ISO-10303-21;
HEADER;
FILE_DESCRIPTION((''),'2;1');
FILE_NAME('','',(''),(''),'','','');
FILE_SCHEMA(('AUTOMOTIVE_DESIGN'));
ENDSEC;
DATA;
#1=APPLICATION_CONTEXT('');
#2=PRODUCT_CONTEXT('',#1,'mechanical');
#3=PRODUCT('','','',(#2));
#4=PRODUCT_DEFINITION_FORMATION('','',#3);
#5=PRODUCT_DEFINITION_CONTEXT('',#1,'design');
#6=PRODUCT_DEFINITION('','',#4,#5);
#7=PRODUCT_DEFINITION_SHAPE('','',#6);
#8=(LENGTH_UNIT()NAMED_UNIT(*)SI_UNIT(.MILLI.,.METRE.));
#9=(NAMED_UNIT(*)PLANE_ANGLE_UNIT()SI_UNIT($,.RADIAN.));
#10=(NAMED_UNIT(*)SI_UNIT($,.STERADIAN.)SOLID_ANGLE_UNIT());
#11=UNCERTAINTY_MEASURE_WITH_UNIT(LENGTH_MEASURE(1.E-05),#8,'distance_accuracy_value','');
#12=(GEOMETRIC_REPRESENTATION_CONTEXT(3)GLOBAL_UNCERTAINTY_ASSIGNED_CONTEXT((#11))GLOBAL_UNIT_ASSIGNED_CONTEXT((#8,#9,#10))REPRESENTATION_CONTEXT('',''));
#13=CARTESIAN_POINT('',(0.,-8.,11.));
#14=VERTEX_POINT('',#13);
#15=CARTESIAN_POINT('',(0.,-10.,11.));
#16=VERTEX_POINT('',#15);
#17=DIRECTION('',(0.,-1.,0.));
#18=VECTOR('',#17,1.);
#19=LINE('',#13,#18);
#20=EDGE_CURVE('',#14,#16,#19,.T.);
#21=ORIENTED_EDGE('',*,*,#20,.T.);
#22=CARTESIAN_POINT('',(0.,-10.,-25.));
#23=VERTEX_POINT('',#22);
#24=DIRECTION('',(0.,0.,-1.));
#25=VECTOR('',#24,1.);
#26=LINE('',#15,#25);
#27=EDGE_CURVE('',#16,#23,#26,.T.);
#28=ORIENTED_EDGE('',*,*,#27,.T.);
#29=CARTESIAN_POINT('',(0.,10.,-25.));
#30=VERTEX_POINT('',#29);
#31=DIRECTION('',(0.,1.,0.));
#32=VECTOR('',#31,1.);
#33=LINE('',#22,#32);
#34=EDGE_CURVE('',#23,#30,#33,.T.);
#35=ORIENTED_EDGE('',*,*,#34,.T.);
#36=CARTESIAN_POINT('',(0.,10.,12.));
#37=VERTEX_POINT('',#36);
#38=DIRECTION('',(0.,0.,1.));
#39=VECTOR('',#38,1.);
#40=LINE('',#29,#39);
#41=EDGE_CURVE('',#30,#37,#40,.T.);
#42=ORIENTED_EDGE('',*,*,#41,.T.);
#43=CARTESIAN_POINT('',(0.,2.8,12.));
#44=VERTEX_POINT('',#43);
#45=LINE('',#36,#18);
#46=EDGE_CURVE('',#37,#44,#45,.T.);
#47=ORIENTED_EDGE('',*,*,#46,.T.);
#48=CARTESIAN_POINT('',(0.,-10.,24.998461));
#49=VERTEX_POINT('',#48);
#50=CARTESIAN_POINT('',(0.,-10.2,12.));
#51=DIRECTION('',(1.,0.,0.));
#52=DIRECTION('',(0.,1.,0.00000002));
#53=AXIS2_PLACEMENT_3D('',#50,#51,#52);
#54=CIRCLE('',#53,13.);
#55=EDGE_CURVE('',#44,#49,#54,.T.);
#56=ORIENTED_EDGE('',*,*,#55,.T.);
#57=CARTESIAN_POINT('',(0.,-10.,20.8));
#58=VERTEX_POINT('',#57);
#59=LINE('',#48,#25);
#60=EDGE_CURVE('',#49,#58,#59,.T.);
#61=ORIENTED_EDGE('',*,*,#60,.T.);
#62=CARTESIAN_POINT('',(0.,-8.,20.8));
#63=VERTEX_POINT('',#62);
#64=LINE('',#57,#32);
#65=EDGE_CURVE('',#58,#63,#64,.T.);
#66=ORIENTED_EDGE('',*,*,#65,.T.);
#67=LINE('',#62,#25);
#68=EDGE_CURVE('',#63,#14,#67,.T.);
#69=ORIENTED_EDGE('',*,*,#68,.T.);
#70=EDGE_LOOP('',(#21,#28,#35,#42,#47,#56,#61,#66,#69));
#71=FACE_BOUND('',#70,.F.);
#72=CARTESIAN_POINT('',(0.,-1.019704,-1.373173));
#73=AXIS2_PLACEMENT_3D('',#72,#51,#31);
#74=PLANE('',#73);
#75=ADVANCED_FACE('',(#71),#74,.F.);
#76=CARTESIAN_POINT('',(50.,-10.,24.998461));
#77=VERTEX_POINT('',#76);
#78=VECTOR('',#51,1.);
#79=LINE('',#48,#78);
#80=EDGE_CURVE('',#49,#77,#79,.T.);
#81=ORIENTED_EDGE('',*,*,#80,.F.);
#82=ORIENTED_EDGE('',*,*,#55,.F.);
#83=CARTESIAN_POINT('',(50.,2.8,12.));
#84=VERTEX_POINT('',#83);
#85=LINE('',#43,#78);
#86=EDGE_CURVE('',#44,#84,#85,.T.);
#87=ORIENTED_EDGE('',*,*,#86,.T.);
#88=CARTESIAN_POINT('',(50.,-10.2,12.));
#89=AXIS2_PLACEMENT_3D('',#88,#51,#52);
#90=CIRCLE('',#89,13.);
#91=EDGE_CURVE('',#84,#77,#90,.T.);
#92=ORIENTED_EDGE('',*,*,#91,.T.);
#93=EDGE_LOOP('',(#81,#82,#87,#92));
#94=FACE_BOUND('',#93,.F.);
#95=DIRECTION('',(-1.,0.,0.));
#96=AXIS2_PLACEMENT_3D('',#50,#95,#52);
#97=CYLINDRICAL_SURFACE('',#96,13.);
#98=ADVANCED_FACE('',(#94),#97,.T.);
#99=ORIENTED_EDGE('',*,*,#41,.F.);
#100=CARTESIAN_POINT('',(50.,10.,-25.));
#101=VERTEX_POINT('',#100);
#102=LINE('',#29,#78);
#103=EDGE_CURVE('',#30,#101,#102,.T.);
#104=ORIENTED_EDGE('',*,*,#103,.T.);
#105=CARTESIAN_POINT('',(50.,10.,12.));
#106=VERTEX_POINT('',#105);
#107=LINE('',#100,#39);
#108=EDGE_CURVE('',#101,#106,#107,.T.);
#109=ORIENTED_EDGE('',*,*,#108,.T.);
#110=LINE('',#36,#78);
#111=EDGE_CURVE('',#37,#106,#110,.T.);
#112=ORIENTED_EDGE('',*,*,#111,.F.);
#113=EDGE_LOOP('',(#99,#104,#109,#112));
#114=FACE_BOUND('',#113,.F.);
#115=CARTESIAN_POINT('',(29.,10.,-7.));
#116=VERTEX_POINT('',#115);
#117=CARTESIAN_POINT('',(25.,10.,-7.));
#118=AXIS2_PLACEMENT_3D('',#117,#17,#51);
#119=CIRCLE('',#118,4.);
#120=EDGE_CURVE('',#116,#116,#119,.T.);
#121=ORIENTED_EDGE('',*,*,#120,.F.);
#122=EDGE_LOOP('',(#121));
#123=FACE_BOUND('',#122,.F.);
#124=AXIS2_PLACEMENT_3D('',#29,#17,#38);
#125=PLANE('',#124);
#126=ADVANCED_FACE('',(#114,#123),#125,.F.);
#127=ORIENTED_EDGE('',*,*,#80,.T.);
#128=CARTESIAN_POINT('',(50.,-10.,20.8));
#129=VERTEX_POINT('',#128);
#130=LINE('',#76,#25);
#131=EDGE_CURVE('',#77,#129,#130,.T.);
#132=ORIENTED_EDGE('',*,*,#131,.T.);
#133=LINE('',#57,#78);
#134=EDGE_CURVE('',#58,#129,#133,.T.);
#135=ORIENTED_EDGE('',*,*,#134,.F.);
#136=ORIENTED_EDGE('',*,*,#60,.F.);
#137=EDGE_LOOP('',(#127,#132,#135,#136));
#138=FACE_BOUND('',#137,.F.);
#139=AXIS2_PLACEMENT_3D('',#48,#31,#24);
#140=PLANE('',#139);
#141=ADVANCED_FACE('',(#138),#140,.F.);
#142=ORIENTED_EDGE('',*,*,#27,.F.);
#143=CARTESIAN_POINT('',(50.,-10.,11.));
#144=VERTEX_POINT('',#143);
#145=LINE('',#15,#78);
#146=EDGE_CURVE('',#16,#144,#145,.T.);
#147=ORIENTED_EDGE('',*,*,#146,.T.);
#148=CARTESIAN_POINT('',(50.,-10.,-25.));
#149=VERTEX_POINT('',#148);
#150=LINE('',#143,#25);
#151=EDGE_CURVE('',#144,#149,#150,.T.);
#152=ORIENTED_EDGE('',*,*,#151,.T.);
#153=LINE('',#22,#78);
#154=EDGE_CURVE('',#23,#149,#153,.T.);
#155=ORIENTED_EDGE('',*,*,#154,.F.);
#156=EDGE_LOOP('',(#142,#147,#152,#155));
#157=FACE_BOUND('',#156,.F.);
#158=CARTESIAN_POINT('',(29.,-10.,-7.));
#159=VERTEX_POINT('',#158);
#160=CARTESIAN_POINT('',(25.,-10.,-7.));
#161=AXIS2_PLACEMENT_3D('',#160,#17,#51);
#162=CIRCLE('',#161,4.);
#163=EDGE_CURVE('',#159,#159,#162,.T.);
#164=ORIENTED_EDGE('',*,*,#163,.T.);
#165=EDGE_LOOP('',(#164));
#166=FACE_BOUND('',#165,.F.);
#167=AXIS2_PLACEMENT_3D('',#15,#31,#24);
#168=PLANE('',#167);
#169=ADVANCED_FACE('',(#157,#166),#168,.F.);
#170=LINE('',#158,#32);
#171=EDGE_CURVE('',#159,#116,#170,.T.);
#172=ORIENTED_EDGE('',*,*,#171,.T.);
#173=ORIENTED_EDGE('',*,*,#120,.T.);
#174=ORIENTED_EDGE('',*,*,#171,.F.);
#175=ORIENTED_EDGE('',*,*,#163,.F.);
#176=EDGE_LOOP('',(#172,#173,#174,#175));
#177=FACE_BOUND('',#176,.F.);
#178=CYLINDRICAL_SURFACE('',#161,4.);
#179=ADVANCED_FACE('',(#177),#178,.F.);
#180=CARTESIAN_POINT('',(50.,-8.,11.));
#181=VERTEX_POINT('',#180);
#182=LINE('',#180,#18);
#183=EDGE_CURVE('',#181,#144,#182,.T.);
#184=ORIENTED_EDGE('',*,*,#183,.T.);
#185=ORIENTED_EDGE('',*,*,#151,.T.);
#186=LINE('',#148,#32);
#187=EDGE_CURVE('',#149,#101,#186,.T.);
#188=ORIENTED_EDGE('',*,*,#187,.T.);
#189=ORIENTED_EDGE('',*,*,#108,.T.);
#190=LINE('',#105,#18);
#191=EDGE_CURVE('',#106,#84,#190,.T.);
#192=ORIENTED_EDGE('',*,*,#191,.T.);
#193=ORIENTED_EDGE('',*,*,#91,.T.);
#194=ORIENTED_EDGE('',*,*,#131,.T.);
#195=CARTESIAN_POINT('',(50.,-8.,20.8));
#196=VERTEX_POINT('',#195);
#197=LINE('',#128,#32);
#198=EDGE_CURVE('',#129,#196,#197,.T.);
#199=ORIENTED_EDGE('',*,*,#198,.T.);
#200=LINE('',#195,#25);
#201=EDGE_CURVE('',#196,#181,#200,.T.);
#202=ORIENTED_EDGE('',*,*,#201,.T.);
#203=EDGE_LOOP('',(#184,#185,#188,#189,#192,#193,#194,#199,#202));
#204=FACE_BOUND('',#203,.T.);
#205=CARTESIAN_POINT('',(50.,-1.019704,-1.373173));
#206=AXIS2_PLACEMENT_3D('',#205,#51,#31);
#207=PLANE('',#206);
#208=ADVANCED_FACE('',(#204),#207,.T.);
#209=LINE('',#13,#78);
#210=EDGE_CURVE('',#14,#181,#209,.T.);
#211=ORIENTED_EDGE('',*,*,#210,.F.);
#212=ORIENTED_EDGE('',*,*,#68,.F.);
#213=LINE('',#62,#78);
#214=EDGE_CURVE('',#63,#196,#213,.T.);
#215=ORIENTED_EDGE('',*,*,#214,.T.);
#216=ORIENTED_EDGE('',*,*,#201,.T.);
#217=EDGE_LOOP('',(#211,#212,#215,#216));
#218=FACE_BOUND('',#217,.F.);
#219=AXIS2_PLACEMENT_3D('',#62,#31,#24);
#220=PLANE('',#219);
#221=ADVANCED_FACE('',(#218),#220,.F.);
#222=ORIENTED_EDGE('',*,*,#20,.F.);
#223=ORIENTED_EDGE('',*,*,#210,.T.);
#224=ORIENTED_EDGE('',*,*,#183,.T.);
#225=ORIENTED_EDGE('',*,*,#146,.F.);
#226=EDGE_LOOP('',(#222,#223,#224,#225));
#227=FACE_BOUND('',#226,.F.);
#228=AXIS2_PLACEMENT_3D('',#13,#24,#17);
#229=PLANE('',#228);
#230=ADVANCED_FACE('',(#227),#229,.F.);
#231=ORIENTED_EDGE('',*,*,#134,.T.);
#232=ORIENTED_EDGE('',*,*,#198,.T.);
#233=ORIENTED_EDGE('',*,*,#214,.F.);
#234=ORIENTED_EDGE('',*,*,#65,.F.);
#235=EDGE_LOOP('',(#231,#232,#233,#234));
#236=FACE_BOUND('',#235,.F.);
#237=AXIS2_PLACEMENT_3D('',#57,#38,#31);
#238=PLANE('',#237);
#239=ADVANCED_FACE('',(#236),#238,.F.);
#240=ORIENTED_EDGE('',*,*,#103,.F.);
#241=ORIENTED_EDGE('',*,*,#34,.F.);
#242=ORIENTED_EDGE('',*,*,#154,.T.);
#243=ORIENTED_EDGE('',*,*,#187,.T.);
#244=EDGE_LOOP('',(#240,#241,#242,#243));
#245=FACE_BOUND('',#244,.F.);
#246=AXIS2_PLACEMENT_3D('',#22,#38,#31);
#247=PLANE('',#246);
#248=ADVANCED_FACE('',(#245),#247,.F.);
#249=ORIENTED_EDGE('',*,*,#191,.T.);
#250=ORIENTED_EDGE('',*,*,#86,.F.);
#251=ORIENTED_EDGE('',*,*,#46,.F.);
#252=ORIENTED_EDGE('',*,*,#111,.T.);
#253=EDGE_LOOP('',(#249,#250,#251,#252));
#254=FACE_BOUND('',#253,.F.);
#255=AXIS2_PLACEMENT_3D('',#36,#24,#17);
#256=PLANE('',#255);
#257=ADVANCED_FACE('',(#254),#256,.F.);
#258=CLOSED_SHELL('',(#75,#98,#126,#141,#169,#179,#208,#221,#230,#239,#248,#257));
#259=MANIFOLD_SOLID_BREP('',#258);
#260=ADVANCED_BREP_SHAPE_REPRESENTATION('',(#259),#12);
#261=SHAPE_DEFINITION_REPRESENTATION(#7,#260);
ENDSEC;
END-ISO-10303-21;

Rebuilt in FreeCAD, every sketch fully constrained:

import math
import FreeCAD as App
import Part
import Sketcher
Q = App.Units.Quantity

doc = App.newDocument("Part")
body = doc.addObject("PartDesign::Body", "Body")

# Sketch on YZ plane
sketch1 = body.newObject("Sketcher::SketchObject", "Sketch")
sketch1.AttachmentSupport = (doc.getObject("YZ_Plane"), [""])
sketch1.MapMode = "FlatFace"
sketch1.addGeometry([
    Part.ArcOfCircle(Part.Circle(App.Vector(-10.2, 12, 0), App.Vector(0, 0, 1), 13), math.radians(0), math.radians(89)),  # 0
    Part.LineSegment(App.Vector(-10, 25, 0), App.Vector(-10, 20.8, 0)),  # 1
    Part.LineSegment(App.Vector(-10, 20.8, 0), App.Vector(-8, 20.8, 0)),  # 2
    Part.LineSegment(App.Vector(-8, 20.8, 0), App.Vector(-8, 11, 0)),  # 3
    Part.LineSegment(App.Vector(-8, 11, 0), App.Vector(-10, 11, 0)),  # 4
    Part.LineSegment(App.Vector(-10, 11, 0), App.Vector(-10, -25, 0)),  # 5
    Part.LineSegment(App.Vector(-10, -25, 0), App.Vector(10, -25, 0)),  # 6
    Part.LineSegment(App.Vector(10, -25, 0), App.Vector(10, 12, 0)),  # 7
    Part.LineSegment(App.Vector(10, 12, 0), App.Vector(2.8, 12, 0)),  # 8
], False)
sketch1.addConstraint([
    Sketcher.Constraint("Coincident", 0, 2, 1, 1),
    Sketcher.Constraint("Coincident", 1, 2, 2, 1),
    Sketcher.Constraint("Coincident", 2, 2, 3, 1),
    Sketcher.Constraint("Coincident", 3, 2, 4, 1),
    Sketcher.Constraint("Coincident", 4, 2, 5, 1),
    Sketcher.Constraint("Coincident", 5, 2, 6, 1),
    Sketcher.Constraint("Coincident", 6, 2, 7, 1),
    Sketcher.Constraint("Coincident", 7, 2, 8, 1),
    Sketcher.Constraint("Coincident", 8, 2, 0, 1),
    Sketcher.Constraint("Vertical", 1),
    Sketcher.Constraint("Horizontal", 2),
    Sketcher.Constraint("Vertical", 3),
    Sketcher.Constraint("Horizontal", 4),
    Sketcher.Constraint("Vertical", 5),
    Sketcher.Constraint("Horizontal", 6),
    Sketcher.Constraint("Vertical", 7),
    Sketcher.Constraint("Horizontal", 8),
    Sketcher.Constraint("Horizontal", 0, 3, 7, 2),
    Sketcher.Constraint("Vertical", 1, 2, 4, 2),
    Sketcher.Constraint("Radius", 0, Q("13 mm")),
    Sketcher.Constraint("DistanceX", 2, 1, 2, 2, Q("2 mm")),
    Sketcher.Constraint("DistanceX", 6, 1, 6, 2, Q("20 mm")),
    Sketcher.Constraint("DistanceY", 5, 2, 5, 1, Q("36 mm")),
    Sketcher.Constraint("DistanceY", 7, 1, 7, 2, Q("37 mm")),
    Sketcher.Constraint("DistanceX", 8, 2, 8, 1, Q("7.2 mm")),
    Sketcher.Constraint("DistanceY", 3, 2, 3, 1, Q("9.8 mm")),
    Sketcher.Constraint("DistanceY", -1, 1, 0, 3, Q("12 mm")),
    Sketcher.Constraint("DistanceX", 0, 2, -1, 1, Q("10 mm")),
])
pad1 = body.newObject("PartDesign::Pad", "Pad")
pad1.Profile = sketch1
pad1.Length = 50

# Sketch on XZ plane
sketch2 = body.newObject("Sketcher::SketchObject", "Sketch001")
sketch2.AttachmentSupport = (doc.getObject("XZ_Plane"), [""])
sketch2.MapMode = "FlatFace"
sketch2.AttachmentOffset = App.Placement(App.Vector(0, 0, 10), App.Rotation())
sketch2.addGeometry(Part.Circle(App.Vector(25, -7, 0), App.Vector(0, 0, 1), 4), False)
sketch2.addConstraint([
    Sketcher.Constraint("Diameter", 0, Q("8 mm")),
    Sketcher.Constraint("DistanceX", -1, 1, 0, 3, Q("25 mm")),
    Sketcher.Constraint("DistanceY", 0, 3, -1, 1, Q("7 mm")),
])
pocket1 = body.newObject("PartDesign::Pocket", "Pocket")
pocket1.Profile = sketch2
pocket1.Length = 50

doc.recompute()
